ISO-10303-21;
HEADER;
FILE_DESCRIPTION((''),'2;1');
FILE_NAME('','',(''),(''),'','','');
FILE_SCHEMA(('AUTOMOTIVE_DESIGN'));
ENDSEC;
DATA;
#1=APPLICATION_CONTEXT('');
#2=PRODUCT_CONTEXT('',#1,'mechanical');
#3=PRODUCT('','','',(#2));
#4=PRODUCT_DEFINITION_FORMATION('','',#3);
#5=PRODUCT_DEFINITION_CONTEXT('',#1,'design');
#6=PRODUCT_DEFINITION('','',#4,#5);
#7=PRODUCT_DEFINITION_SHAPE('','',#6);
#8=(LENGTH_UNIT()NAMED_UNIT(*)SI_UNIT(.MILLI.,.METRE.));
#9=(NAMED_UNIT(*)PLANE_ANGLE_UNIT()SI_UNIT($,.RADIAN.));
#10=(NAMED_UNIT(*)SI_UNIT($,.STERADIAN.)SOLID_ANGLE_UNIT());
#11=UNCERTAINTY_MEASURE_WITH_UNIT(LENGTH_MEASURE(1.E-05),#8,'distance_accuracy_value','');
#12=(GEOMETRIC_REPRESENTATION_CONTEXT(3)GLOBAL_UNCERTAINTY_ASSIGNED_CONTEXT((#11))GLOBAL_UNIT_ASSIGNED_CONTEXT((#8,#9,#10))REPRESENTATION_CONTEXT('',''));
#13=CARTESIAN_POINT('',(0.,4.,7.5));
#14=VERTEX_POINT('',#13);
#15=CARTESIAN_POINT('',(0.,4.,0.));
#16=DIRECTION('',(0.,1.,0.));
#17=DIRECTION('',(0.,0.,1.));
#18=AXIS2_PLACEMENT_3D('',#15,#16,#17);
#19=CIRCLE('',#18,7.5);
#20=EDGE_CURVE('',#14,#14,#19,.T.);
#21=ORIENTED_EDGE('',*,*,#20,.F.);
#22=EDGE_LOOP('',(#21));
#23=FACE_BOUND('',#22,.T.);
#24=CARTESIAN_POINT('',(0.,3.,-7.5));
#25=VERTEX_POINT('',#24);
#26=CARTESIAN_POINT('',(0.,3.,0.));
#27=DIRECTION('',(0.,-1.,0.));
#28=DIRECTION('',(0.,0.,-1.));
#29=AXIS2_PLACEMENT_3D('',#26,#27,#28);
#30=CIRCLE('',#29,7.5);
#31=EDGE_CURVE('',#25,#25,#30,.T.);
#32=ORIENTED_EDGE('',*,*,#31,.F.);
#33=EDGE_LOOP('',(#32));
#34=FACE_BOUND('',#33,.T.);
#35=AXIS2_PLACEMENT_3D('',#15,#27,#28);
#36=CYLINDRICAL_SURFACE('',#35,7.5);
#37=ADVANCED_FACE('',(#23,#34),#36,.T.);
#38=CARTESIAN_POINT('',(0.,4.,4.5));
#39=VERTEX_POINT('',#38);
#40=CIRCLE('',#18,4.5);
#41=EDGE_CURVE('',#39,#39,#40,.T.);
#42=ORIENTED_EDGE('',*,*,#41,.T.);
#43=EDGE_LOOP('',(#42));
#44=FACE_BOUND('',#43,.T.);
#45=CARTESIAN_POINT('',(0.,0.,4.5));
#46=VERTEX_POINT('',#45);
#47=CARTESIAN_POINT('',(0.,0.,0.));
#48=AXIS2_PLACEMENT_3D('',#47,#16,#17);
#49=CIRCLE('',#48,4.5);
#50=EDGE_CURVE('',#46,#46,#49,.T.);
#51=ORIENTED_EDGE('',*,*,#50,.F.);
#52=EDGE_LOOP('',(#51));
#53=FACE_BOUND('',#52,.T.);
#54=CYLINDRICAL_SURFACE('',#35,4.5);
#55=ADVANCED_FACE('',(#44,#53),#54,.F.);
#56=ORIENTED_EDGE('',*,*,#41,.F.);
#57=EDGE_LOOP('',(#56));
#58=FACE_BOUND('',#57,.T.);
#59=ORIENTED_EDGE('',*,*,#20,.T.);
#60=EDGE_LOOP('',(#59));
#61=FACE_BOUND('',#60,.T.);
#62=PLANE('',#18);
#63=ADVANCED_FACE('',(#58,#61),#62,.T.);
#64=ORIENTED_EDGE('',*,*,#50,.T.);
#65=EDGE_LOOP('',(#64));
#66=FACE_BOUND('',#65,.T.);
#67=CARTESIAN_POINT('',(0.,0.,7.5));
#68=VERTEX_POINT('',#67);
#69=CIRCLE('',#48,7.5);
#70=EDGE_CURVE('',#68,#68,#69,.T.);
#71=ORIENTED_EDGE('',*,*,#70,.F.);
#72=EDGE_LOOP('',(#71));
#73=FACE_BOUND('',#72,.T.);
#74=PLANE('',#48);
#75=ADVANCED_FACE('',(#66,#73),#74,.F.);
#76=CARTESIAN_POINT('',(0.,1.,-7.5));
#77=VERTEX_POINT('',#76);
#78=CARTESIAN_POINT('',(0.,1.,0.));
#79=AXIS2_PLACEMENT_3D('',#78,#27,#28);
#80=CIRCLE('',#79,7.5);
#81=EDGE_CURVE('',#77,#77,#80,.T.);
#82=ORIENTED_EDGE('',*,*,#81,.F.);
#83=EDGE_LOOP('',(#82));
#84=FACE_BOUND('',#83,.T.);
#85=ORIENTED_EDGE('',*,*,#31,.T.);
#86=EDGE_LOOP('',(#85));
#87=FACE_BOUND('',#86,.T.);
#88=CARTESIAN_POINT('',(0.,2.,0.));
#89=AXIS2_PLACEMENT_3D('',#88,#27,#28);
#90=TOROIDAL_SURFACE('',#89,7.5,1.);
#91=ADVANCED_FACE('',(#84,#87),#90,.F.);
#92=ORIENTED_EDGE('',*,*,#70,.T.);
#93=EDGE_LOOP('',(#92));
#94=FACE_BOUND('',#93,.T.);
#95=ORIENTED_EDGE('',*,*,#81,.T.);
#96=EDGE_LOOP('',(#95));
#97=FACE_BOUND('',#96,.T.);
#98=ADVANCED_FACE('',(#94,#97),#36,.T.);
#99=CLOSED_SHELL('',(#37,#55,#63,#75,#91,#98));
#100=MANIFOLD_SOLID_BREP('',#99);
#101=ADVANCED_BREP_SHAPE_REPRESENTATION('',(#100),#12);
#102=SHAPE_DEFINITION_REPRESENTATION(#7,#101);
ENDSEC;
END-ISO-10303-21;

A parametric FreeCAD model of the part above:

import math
import FreeCAD as App
import Part
import Sketcher
Q = App.Units.Quantity

doc = App.newDocument("Part")
body = doc.addObject("PartDesign::Body", "Body")

sketch1 = doc.addObject("Sketcher::SketchObject", "Sketch")
body.addObject(sketch1)
sketch1.AttachmentSupport = (doc.XZ_Plane, [""])
sketch1.MapMode = "FlatFace"
sketch1.addGeometry([
    Part.Circle(App.Vector(0, 0, 0), App.Vector(0, 0, 1), 7.5),
    Part.Circle(App.Vector(0, 0, 0), App.Vector(0, 0, 1), 4.5),
], False)
sketch1.addConstraint([
    Sketcher.Constraint("Coincident", 0, 3, -1, 1),
    Sketcher.Constraint("Coincident", 1, 3, -1, 1),
    Sketcher.Constraint("Diameter", 0, Q("15 mm")),
    Sketcher.Constraint("Diameter", 1, Q("9 mm")),
])
pad1 = doc.addObject("PartDesign::Pad", "Pad")
body.addObject(pad1)
pad1.Profile = sketch1
pad1.Length = 4
pad1.Reversed = True

sketch2 = doc.addObject("Sketcher::SketchObject", "Sketch001")
body.addObject(sketch2)
sketch2.AttachmentSupport = (doc.XY_Plane, [""])
sketch2.MapMode = "FlatFace"
sketch2.addGeometry([
    Part.LineSegment(App.Vector(-7.5, 3, 0), App.Vector(-7.5, 1, 0)),
    Part.ArcOfCircle(Part.Circle(App.Vector(-7.5, 2, 0), App.Vector(0, 0, 1), 1), math.radians(-90), math.radians(90)),
], False)
sketch2.addConstraint([
    Sketcher.Constraint("Coincident", 0, 1, 1, 2),
    Sketcher.Constraint("Coincident", 1, 1, 0, 2),
    Sketcher.Constraint("Vertical", 0),
    Sketcher.Constraint("Vertical", 1, 3, 0, 1),
    Sketcher.Constraint("Radius", 1, Q("1 mm")),
    Sketcher.Constraint("DistanceY", -1, 1, 1, 3, Q("2 mm")),
    Sketcher.Constraint("DistanceX", 1, 3, -1, 1, Q("7.5 mm")),
])
groove = doc.addObject("PartDesign::Groove", "Groove")
body.addObject(groove)
groove.Profile = sketch2
groove.ReferenceAxis = (sketch2, ["V_Axis"])
groove.Angle = 360

doc.recompute()
